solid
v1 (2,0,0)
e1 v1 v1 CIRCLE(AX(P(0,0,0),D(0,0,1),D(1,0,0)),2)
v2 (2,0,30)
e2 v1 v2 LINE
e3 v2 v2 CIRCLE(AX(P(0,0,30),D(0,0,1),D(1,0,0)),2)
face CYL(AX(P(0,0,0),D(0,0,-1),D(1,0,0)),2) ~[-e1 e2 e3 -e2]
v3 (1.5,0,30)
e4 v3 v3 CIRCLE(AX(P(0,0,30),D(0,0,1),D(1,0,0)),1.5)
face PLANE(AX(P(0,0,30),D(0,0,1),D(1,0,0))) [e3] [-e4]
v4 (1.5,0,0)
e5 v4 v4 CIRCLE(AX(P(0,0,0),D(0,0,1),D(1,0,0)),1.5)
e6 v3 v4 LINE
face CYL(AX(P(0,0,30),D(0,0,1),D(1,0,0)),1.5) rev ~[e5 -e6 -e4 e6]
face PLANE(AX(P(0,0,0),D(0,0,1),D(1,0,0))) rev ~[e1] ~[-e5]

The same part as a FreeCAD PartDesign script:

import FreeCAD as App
import Part
import Sketcher

V = App.Vector

doc = App.newDocument("Part")
body = doc.addObject("PartDesign::Body", "Body")

sketch1 = body.newObject("Sketcher::SketchObject", "Sketch")
sketch1.AttachmentSupport = (doc.getObject("XY_Plane"), [""])
sketch1.MapMode = "FlatFace"
sketch1.addGeometry(Part.Circle(V(0, 0, 0), V(0, 0, 1), 2), False)
sketch1.addConstraint([
    Sketcher.Constraint("Coincident", 0, 3, -1, 1),
    Sketcher.Constraint("Diameter", 0, 4.0),
])
pad1 = body.newObject("PartDesign::Pad", "Pad")
pad1.Profile = sketch1
pad1.Length = 30

sketch2 = body.newObject("Sketcher::SketchObject", "Sketch001")
sketch2.AttachmentSupport = (doc.getObject("XY_Plane"), [""])
sketch2.MapMode = "FlatFace"
sketch2.AttachmentOffset = App.Placement(V(0, 0, 30), App.Rotation())
sketch2.addGeometry(Part.Circle(V(0, 0, 0), V(0, 0, 1), 1.5), False)
sketch2.addConstraint([
    Sketcher.Constraint("Coincident", 0, 3, -1, 1),
    Sketcher.Constraint("Diameter", 0, 3.0),
])
pocket1 = body.newObject("PartDesign::Pocket", "Pocket")
pocket1.Profile = sketch2
pocket1.Length = 39

doc.recompute()
